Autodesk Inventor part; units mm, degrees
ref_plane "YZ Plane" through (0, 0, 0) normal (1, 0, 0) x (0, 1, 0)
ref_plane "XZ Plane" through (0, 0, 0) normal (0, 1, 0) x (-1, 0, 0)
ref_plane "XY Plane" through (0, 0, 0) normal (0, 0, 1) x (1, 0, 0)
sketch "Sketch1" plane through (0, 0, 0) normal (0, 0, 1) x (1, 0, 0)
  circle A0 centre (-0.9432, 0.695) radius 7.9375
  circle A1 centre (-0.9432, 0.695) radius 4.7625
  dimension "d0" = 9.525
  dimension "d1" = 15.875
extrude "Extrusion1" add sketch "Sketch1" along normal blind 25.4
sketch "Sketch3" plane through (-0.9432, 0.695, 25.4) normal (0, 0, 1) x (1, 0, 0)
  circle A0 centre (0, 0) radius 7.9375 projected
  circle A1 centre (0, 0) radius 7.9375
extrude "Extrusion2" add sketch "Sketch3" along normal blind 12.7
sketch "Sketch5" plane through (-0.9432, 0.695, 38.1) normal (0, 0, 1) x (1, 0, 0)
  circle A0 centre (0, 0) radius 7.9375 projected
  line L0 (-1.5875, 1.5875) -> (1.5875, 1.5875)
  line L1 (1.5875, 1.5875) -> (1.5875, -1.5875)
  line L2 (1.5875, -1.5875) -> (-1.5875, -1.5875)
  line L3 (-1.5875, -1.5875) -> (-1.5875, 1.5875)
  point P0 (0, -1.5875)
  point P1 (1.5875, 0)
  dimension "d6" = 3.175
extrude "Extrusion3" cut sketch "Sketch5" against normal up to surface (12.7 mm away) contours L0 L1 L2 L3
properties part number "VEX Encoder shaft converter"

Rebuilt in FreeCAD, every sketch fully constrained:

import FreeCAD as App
import Part
import Sketcher
from FreeCAD import Vector
Q = App.Units.Quantity

doc = App.newDocument("Part")
body = doc.addObject("PartDesign::Body", "Body")

sketch1 = body.newObject("Sketcher::SketchObject", "Sketch")
sketch1.AttachmentSupport = (doc.getObject("XY_Plane"), [""])
sketch1.MapMode = "FlatFace"
sketch1.addGeometry(Part.Circle(Vector(-0.9, 0.7, 0), Vector(0, 0, 1), 7.9), False)
sketch1.addGeometry(Part.Circle(Vector(-0.9, 0.7, 0), Vector(0, 0, 1), 4.8), False)
sketch1.addConstraint(Sketcher.Constraint("Coincident", 1, 3, 0, 3))
sketch1.addConstraint(Sketcher.Constraint("Diameter", 0, Q("0.625 in")))
sketch1.addConstraint(Sketcher.Constraint("Diameter", 1, Q("0.375 in")))
sketch1.addConstraint(Sketcher.Constraint("DistanceX", 0, 3, -1, 1, Q("0.9432 mm")))
sketch1.addConstraint(Sketcher.Constraint("DistanceY", -1, 1, 0, 3, Q("0.695 mm")))
pad1 = body.newObject("PartDesign::Pad", "Pad")
pad1.Profile = sketch1
pad1.Length = Q("1 in")

sketch2 = body.newObject("Sketcher::SketchObject", "Sketch001")
sketch2.AttachmentSupport = (doc.getObject("XY_Plane"), [""])
sketch2.MapMode = "FlatFace"
sketch2.AttachmentOffset = App.Placement(Vector(0, 0, 1 * 25.4), App.Rotation())
sketch2.addGeometry(Part.Circle(Vector(-1, 1, 0), Vector(0, 0, 1), 8), False)
sketch2.addConstraint(Sketcher.Constraint("Diameter", 0, Q("0.625 in")))
sketch2.addConstraint(Sketcher.Constraint("DistanceX", 0, 3, -1, 1, Q("0.9432 mm")))
sketch2.addConstraint(Sketcher.Constraint("DistanceY", -1, 1, 0, 3, Q("0.695 mm")))
pad2 = body.newObject("PartDesign::Pad", "Pad001")
pad2.Profile = sketch2
pad2.Length = Q("0.5 in")

sketch3 = body.newObject("Sketcher::SketchObject", "Sketch002")
sketch3.AttachmentSupport = (doc.getObject("XY_Plane"), [""])
sketch3.MapMode = "FlatFace"
sketch3.AttachmentOffset = App.Placement(Vector(0, 0, 1.5 * 25.4), App.Rotation())
sketch3.addGeometry(Part.LineSegment(Vector(0.6, 2.3, 0), Vector(-2.5, 2.3, 0)), False)
sketch3.addGeometry(Part.LineSegment(Vector(-2.5, 2.3, 0), Vector(-2.5, -0.9, 0)), False)
sketch3.addGeometry(Part.LineSegment(Vector(-2.5, -0.9, 0), Vector(0.6, -0.9, 0)), False)
sketch3.addGeometry(Part.LineSegment(Vector(0.6, -0.9, 0), Vector(0.6, 2.3, 0)), False)
sketch3.addConstraint(Sketcher.Constraint("Coincident", 0, 2, 1, 1))
sketch3.addConstraint(Sketcher.Constraint("Coincident", 1, 2, 2, 1))
sketch3.addConstraint(Sketcher.Constraint("Coincident", 2, 2, 3, 1))
sketch3.addConstraint(Sketcher.Constraint("Coincident", 3, 2, 0, 1))
sketch3.addConstraint(Sketcher.Constraint("Horizontal", 0))
sketch3.addConstraint(Sketcher.Constraint("Vertical", 1))
sketch3.addConstraint(Sketcher.Constraint("Horizontal", 2))
sketch3.addConstraint(Sketcher.Constraint("Vertical", 3))
sketch3.addConstraint(Sketcher.Constraint("Equal", 2, 1))
sketch3.addConstraint(Sketcher.Constraint("DistanceX", 0, 2, 0, 1, Q("0.125 in")))
sketch3.addConstraint(Sketcher.Constraint("DistanceX", 0, 2, -1, 1, Q("2.5307 mm")))
sketch3.addConstraint(Sketcher.Constraint("DistanceY", -1, 1, 0, 2, Q("2.2825 mm")))
pocket1 = body.newObject("PartDesign::Pocket", "Pocket")
pocket1.Profile = sketch3
pocket1.Length = Q("0.5 in")

doc.recompute()
